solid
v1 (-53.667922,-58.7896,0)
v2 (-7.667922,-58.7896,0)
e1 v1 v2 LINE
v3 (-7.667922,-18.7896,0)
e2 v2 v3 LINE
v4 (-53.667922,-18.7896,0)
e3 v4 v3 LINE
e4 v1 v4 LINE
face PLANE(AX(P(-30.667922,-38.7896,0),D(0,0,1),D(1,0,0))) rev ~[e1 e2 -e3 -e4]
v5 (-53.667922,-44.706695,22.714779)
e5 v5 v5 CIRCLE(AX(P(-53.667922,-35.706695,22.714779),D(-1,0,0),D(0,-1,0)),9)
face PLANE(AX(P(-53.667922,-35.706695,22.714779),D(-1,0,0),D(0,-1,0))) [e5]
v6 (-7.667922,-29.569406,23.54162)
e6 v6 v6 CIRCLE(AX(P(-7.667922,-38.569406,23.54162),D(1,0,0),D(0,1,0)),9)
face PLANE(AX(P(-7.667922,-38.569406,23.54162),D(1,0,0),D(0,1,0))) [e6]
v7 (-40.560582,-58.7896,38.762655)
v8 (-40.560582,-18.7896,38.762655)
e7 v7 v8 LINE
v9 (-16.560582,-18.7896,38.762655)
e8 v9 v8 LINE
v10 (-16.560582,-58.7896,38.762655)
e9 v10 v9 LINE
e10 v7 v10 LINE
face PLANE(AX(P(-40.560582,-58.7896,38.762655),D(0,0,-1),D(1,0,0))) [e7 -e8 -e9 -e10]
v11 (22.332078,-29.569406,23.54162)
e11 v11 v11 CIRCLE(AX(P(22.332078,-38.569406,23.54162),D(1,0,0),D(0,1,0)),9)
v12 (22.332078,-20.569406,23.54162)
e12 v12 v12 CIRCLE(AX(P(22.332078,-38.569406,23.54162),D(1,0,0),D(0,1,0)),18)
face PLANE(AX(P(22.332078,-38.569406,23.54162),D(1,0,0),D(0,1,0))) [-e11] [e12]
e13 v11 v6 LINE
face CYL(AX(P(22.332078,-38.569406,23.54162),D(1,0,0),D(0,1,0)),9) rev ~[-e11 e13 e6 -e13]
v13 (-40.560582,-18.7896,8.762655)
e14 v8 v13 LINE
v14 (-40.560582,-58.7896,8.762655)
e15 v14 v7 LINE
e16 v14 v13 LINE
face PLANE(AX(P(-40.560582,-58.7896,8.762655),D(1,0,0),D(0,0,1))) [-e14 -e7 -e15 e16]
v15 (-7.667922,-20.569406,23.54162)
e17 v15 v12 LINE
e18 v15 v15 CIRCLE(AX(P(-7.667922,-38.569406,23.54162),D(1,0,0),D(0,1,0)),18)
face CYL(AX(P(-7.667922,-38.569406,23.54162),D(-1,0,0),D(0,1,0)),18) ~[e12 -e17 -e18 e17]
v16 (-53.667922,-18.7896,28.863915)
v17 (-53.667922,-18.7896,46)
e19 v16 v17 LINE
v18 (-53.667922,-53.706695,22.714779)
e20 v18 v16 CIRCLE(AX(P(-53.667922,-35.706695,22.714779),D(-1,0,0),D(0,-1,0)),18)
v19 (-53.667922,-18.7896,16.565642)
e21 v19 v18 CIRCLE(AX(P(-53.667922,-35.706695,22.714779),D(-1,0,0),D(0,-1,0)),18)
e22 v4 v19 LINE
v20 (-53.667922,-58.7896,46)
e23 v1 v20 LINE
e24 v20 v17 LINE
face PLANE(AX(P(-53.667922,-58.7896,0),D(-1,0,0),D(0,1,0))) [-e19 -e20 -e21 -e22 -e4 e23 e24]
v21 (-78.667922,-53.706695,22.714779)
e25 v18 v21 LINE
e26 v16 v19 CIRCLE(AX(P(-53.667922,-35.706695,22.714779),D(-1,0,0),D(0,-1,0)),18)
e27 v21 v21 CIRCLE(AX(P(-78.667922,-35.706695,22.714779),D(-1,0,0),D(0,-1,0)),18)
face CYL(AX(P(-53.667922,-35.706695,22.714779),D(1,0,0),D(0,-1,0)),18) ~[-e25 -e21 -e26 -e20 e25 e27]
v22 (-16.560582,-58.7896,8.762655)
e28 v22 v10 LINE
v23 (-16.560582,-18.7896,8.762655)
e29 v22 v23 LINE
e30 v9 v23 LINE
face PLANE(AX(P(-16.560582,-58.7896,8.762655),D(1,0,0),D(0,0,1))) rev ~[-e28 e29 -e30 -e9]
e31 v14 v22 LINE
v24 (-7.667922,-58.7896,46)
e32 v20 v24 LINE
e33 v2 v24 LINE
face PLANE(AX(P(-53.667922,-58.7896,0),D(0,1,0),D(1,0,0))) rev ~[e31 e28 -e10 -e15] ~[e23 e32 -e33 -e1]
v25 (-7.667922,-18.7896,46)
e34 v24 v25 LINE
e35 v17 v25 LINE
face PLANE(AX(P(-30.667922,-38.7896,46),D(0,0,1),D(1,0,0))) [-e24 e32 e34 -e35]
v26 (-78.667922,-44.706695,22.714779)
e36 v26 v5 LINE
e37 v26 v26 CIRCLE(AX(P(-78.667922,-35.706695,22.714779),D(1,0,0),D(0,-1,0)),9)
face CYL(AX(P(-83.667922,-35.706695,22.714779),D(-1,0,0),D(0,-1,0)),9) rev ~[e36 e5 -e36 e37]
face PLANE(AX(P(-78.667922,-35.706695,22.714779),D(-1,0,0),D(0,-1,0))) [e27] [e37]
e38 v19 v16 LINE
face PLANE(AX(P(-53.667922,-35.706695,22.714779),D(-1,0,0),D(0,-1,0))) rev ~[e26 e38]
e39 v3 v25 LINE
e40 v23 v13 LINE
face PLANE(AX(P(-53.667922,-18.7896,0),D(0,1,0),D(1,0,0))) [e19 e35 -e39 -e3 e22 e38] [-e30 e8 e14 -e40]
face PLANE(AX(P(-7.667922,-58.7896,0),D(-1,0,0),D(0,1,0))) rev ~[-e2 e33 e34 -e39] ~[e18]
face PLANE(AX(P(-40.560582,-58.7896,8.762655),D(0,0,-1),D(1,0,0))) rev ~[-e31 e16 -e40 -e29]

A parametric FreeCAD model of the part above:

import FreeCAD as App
import Part
import Sketcher
from FreeCAD import Vector
Q = App.Units.Quantity


def add_polygon(sketch, points):
    """Adds a closed chain of lines whose ends are joined by coincident constraints."""
    first, n = sketch.GeometryCount, len(points)
    for a, b in zip(points, points[1:] + points[:1]):
        sketch.addGeometry(Part.LineSegment(App.Vector(*a, 0), App.Vector(*b, 0)), False)
    for i in range(n):
        sketch.addConstraint(Sketcher.Constraint("Coincident", first + i, 2, first + (i + 1) % n, 1))

doc = App.newDocument("Part")
body = doc.addObject("PartDesign::Body", "Body")

sketch1 = body.newObject("Sketcher::SketchObject", "Sketch")
sketch1.AttachmentSupport = (doc.getObject("XY_Plane"), [""])
sketch1.MapMode = "FlatFace"
add_polygon(sketch1, [(-54, -19), (-54, -59), (-8, -59), (-8, -19)])
sketch1.addConstraint(Sketcher.Constraint("Vertical", 0))
sketch1.addConstraint(Sketcher.Constraint("Horizontal", 1))
sketch1.addConstraint(Sketcher.Constraint("Vertical", 2))
sketch1.addConstraint(Sketcher.Constraint("Horizontal", 3))
sketch1.addConstraint(Sketcher.Constraint("DistanceX", 1, 1, 1, 2, Q("46 mm")))
sketch1.addConstraint(Sketcher.Constraint("DistanceY", 0, 2, 0, 1, Q("40 mm")))
sketch1.addConstraint(Sketcher.Constraint("DistanceY", 0, 2, -1, 1, Q("58.7896 mm")))
sketch1.addConstraint(Sketcher.Constraint("DistanceX", 0, 2, -1, 1, Q("53.667922 mm")))
pad1 = body.newObject("PartDesign::Pad", "Pad")
pad1.Profile = sketch1
pad1.Length = 46

sketch2 = body.newObject("Sketcher::SketchObject", "Sketch001")
sketch2.AttachmentSupport = (doc.getObject("YZ_Plane"), [""])
sketch2.MapMode = "FlatFace"
sketch2.AttachmentOffset = App.Placement(Vector(0, 0, -53.667922), App.Rotation())
sketch2.addGeometry(Part.Circle(Vector(-36, 23, 0), Vector(0, 0, 1), 9), False)
sketch2.addConstraint(Sketcher.Constraint("Diameter", 0, Q("18 mm")))
sketch2.addConstraint(Sketcher.Constraint("DistanceY", -1, 1, 0, 3, Q("22.714779 mm")))
sketch2.addConstraint(Sketcher.Constraint("DistanceX", 0, 3, -1, 1, Q("35.706695 mm")))
pad2 = body.newObject("PartDesign::Pad", "Pad001")
pad2.Profile = sketch2
pad2.Length = 30
pad2.Reversed = True

sketch3 = body.newObject("Sketcher::SketchObject", "Sketch002")
sketch3.AttachmentSupport = (doc.getObject("YZ_Plane"), [""])
sketch3.MapMode = "FlatFace"
sketch3.AttachmentOffset = App.Placement(Vector(0, 0, -7.667922), App.Rotation())
sketch3.addGeometry(Part.Circle(Vector(-39, 24, 0), Vector(0, 0, 1), 9), False)
sketch3.addConstraint(Sketcher.Constraint("Diameter", 0, Q("18 mm")))
sketch3.addConstraint(Sketcher.Constraint("DistanceY", -1, 1, 0, 3, Q("23.54162 mm")))
sketch3.addConstraint(Sketcher.Constraint("DistanceX", 0, 3, -1, 1, Q("38.569406 mm")))
pad3 = body.newObject("PartDesign::Pad", "Pad002")
pad3.Profile = sketch3
pad3.Length = 30

sketch4 = body.newObject("Sketcher::SketchObject", "Sketch003")
sketch4.AttachmentSupport = (doc.getObject("XZ_Plane"), [""])
sketch4.MapMode = "FlatFace"
sketch4.AttachmentOffset = App.Placement(Vector(0, 0, 58.7896), App.Rotation())
add_polygon(sketch4, [(-41, 39), (-41, 9), (-17, 9), (-17, 39)])
sketch4.addConstraint(Sketcher.Constraint("Vertical", 0))
sketch4.addConstraint(Sketcher.Constraint("Horizontal", 1))
sketch4.addConstraint(Sketcher.Constraint("Vertical", 2))
sketch4.addConstraint(Sketcher.Constraint("Horizontal", 3))
sketch4.addConstraint(Sketcher.Constraint("DistanceX", 1, 1, 1, 2, Q("24 mm")))
sketch4.addConstraint(Sketcher.Constraint("DistanceY", 0, 2, 0, 1, Q("30 mm")))
sketch4.addConstraint(Sketcher.Constraint("DistanceX", 0, 2, -1, 1, Q("40.560582 mm")))
sketch4.addConstraint(Sketcher.Constraint("DistanceY", -1, 1, 0, 2, Q("8.762655 mm")))
pocket1 = body.newObject("PartDesign::Pocket", "Pocket")
pocket1.Profile = sketch4
pocket1.Length = 46

sketch5 = body.newObject("Sketcher::SketchObject", "Sketch004")
sketch5.AttachmentSupport = (doc.getObject("YZ_Plane"), [""])
sketch5.MapMode = "FlatFace"
sketch5.AttachmentOffset = App.Placement(Vector(0, 0, -53.667922), App.Rotation())
sketch5.addGeometry(Part.Circle(Vector(-36, 23, 0), Vector(0, 0, 1), 18), False)
sketch5.addConstraint(Sketcher.Constraint("Diameter", 0, Q("36 mm")))
sketch5.addConstraint(Sketcher.Constraint("DistanceY", -1, 1, 0, 3, Q("22.714779 mm")))
sketch5.addConstraint(Sketcher.Constraint("DistanceX", 0, 3, -1, 1, Q("35.706695 mm")))
pad4 = body.newObject("PartDesign::Pad", "Pad003")
pad4.Profile = sketch5
pad4.Length = 25
pad4.Reversed = True

sketch6 = body.newObject("Sketcher::SketchObject", "Sketch005")
sketch6.AttachmentSupport = (doc.getObject("YZ_Plane"), [""])
sketch6.MapMode = "FlatFace"
sketch6.AttachmentOffset = App.Placement(Vector(0, 0, -83.667922), App.Rotation())
sketch6.addGeometry(Part.Circle(Vector(-36, 23, 0), Vector(0, 0, 1), 9), False)
sketch6.addConstraint(Sketcher.Constraint("Diameter", 0, Q("18 mm")))
sketch6.addConstraint(Sketcher.Constraint("DistanceY", -1, 1, 0, 3, Q("22.714779 mm")))
sketch6.addConstraint(Sketcher.Constraint("DistanceX", 0, 3, -1, 1, Q("35.706695 mm")))
pocket2 = body.newObject("PartDesign::Pocket", "Pocket001")
pocket2.Profile = sketch6
pocket2.Length = 30
pocket2.Reversed = True

sketch7 = body.newObject("Sketcher::SketchObject", "Sketch006")
sketch7.AttachmentSupport = (doc.getObject("YZ_Plane"), [""])
sketch7.MapMode = "FlatFace"
sketch7.AttachmentOffset = App.Placement(Vector(0, 0, -7.667922), App.Rotation())
sketch7.addGeometry(Part.Circle(Vector(-39, 24, 0), Vector(0, 0, 1), 18), False)
sketch7.addConstraint(Sketcher.Constraint("Diameter", 0, Q("36 mm")))
sketch7.addConstraint(Sketcher.Constraint("DistanceY", -1, 1, 0, 3, Q("23.54162 mm")))
sketch7.addConstraint(Sketcher.Constraint("DistanceX", 0, 3, -1, 1, Q("38.569406 mm")))
pad5 = body.newObject("PartDesign::Pad", "Pad004")
pad5.Profile = sketch7
pad5.Length = 30

sketch8 = body.newObject("Sketcher::SketchObject", "Sketch007")
sketch8.AttachmentSupport = (doc.getObject("YZ_Plane"), [""])
sketch8.MapMode = "FlatFace"
sketch8.AttachmentOffset = App.Placement(Vector(0, 0, 22.332078), App.Rotation())
sketch8.addGeometry(Part.Circle(Vector(-39, 24, 0), Vector(0, 0, 1), 9), False)
sketch8.addConstraint(Sketcher.Constraint("Diameter", 0, Q("18 mm")))
sketch8.addConstraint(Sketcher.Constraint("DistanceY", -1, 1, 0, 3, Q("23.54162 mm")))
sketch8.addConstraint(Sketcher.Constraint("DistanceX", 0, 3, -1, 1, Q("38.569406 mm")))
pocket3 = body.newObject("PartDesign::Pocket", "Pocket002")
pocket3.Profile = sketch8
pocket3.Length = 30

doc.recompute()
